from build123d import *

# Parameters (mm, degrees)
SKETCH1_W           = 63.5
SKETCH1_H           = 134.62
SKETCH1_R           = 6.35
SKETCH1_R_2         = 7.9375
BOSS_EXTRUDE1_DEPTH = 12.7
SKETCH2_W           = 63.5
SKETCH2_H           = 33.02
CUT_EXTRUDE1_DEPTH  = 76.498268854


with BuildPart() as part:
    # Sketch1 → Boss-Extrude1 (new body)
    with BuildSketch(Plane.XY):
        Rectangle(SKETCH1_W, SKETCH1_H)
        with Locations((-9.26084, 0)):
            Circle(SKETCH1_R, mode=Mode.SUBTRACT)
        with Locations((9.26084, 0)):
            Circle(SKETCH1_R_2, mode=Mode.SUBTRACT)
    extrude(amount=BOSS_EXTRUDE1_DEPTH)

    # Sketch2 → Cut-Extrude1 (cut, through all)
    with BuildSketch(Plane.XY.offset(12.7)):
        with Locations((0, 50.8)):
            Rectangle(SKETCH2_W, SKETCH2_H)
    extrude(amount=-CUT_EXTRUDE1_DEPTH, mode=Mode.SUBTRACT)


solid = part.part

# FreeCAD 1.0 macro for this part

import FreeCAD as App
import Part
import Sketcher
from FreeCAD import Vector
Q = App.Units.Quantity


def add_polygon(sketch, points):
    """Adds a closed chain of lines whose ends are joined by coincident constraints."""
    first, n = sketch.GeometryCount, len(points)
    for a, b in zip(points, points[1:] + points[:1]):
        sketch.addGeometry(Part.LineSegment(App.Vector(*a, 0), App.Vector(*b, 0)), False)
    for i in range(n):
        sketch.addConstraint(Sketcher.Constraint("Coincident", first + i, 2, first + (i + 1) % n, 1))

doc = App.newDocument("Part")
body = doc.addObject("PartDesign::Body", "Body")

# Sketch on XY plane
sketch1 = body.newObject("Sketcher::SketchObject", "Sketch")
sketch1.AttachmentSupport = (doc.getObject("XY_Plane"), [""])
sketch1.MapMode = "FlatFace"
add_polygon(sketch1, [(-32, 67), (-32, -67), (32, -67), (32, 67)])  # lines 0-3
sketch1.addGeometry(Part.Circle(Vector(-9, 0, 0), Vector(0, 0, 1), 6), False)  # 4
sketch1.addGeometry(Part.Circle(Vector(9, 0, 0), Vector(0, 0, 1), 8), False)  # 5
sketch1.addConstraint(Sketcher.Constraint("Vertical", 0))
sketch1.addConstraint(Sketcher.Constraint("Horizontal", 1))
sketch1.addConstraint(Sketcher.Constraint("Vertical", 2))
sketch1.addConstraint(Sketcher.Constraint("Horizontal", 3))
sketch1.addConstraint(Sketcher.Constraint("Symmetric", 4, 3, 5, 3, -1, 1))
sketch1.addConstraint(Sketcher.Constraint("Symmetric", 0, 2, 2, 2, -1, 1))
sketch1.addConstraint(Sketcher.Constraint("PointOnObject", 4, 3, -1))
sketch1.addConstraint(Sketcher.Constraint("Diameter", 4, Q("0.5 in")))
sketch1.addConstraint(Sketcher.Constraint("Diameter", 5, Q("0.625 in")))
sketch1.addConstraint(Sketcher.Constraint("DistanceX", 1, 1, 1, 2, Q("2.5 in")))
sketch1.addConstraint(Sketcher.Constraint("DistanceY", 0, 2, 0, 1, Q("5.3 in")))
sketch1.addConstraint(Sketcher.Constraint("DistanceX", 4, 3, -1, 1, Q("0.3646 in")))
pad1 = body.newObject("PartDesign::Pad", "Pad")
pad1.Profile = sketch1
pad1.Length = Q("0.5 in")

# Sketch on XY plane
sketch2 = body.newObject("Sketcher::SketchObject", "Sketch001")
sketch2.AttachmentSupport = (doc.getObject("XY_Plane"), [""])
sketch2.MapMode = "FlatFace"
sketch2.AttachmentOffset = App.Placement(Vector(0, 0, 0.5 * 25.4), App.Rotation())
add_polygon(sketch2, [(-32, 67), (-32, 34), (32, 34), (32, 67)])  # lines 0-3
sketch2.addConstraint(Sketcher.Constraint("Vertical", 0))
sketch2.addConstraint(Sketcher.Constraint("Horizontal", 1))
sketch2.addConstraint(Sketcher.Constraint("Vertical", 2))
sketch2.addConstraint(Sketcher.Constraint("Horizontal", 3))
sketch2.addConstraint(Sketcher.Constraint("DistanceX", 1, 1, 1, 2, Q("2.5 in")))
sketch2.addConstraint(Sketcher.Constraint("DistanceY", 0, 2, 0, 1, Q("1.3 in")))
sketch2.addConstraint(Sketcher.Constraint("DistanceX", 0, 2, -1, 1, Q("1.25 in")))
sketch2.addConstraint(Sketcher.Constraint("DistanceY", -1, 1, 0, 2, Q("1.35 in")))
pocket1 = body.newObject("PartDesign::Pocket", "Pocket")
pocket1.Profile = sketch2
pocket1.Type = "ThroughAll"

doc.recompute()
